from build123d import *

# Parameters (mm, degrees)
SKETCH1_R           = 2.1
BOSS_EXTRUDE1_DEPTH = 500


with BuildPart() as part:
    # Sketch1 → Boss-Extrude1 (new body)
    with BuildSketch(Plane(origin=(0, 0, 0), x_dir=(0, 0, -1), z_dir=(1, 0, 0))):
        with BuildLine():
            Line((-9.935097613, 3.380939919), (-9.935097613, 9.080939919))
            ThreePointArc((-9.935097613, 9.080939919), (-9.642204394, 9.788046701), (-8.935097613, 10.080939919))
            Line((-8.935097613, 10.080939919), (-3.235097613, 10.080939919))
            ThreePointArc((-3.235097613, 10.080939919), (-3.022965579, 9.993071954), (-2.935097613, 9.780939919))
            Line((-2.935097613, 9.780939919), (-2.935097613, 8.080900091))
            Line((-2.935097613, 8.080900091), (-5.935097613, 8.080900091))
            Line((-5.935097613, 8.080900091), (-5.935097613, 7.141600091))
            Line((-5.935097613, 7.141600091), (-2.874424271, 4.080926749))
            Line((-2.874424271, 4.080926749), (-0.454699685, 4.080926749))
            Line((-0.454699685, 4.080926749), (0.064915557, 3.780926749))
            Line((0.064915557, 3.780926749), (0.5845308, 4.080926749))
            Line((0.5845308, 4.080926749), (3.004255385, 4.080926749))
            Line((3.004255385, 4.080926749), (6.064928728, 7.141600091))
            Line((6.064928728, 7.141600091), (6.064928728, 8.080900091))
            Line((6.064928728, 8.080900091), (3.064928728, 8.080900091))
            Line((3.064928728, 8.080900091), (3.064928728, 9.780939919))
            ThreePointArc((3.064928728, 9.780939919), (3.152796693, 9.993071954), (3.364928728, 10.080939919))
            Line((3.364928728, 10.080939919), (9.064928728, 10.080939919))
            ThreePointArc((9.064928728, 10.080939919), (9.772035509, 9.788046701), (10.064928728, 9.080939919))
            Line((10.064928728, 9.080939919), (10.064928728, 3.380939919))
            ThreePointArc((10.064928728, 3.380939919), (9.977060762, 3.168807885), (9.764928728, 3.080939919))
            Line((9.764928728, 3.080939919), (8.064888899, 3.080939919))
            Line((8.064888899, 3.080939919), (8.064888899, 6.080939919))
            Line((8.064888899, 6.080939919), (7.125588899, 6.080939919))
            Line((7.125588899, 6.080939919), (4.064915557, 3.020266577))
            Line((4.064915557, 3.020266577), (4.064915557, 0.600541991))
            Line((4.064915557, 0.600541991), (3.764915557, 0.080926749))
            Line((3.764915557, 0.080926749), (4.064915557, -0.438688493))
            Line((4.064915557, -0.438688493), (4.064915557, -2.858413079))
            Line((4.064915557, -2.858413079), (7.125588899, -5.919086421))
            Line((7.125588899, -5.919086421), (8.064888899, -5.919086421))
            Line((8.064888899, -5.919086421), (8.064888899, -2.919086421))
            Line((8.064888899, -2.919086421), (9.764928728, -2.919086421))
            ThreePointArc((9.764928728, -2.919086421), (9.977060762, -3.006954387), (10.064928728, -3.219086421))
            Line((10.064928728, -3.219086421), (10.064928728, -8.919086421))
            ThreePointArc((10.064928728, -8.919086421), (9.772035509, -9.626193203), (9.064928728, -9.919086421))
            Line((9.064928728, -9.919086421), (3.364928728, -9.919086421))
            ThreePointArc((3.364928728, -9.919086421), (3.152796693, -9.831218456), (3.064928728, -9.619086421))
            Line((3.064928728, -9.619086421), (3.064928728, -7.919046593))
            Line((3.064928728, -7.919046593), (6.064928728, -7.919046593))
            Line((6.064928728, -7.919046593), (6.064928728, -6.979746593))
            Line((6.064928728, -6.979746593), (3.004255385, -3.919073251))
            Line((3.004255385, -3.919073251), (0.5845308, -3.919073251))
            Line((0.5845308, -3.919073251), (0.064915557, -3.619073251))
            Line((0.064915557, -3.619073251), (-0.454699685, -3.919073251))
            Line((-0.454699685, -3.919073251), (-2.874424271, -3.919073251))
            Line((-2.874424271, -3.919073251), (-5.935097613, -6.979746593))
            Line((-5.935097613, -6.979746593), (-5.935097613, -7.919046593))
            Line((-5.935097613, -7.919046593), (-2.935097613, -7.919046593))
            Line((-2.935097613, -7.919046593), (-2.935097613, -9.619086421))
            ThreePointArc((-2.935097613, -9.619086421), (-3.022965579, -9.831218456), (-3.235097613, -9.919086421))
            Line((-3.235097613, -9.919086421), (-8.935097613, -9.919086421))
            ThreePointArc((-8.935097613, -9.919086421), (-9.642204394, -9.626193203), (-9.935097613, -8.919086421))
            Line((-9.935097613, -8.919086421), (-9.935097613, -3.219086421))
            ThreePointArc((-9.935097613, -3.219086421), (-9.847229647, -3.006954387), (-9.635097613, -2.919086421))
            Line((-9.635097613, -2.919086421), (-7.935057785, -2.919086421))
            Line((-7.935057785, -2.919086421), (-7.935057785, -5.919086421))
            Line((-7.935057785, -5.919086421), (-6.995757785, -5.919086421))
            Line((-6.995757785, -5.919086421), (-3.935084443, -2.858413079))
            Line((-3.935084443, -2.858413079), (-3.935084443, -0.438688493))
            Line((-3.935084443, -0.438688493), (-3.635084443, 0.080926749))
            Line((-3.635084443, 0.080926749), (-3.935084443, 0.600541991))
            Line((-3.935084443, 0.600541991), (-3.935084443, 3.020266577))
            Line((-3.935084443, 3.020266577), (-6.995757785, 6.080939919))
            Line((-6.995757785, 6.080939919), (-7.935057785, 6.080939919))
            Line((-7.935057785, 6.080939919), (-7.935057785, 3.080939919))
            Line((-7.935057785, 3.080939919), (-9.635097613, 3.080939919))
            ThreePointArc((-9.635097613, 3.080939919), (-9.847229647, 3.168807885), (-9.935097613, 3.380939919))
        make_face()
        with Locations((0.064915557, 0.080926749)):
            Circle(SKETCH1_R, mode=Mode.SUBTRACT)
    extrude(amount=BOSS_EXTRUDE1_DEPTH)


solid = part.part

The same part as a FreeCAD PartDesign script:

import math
import FreeCAD as App
import Part
import Sketcher
from FreeCAD import Vector
Q = App.Units.Quantity

doc = App.newDocument("Part")
params = doc.addObject("Spreadsheet::Sheet", "Params")
for row, (alias, value) in enumerate([
    ("sketch1_radius", "1 mm"),
    ("sketch1_diameter", "4.2 mm"),
    ("sketch1_radius2", "0.3 mm"),
    ("sketch1_width", "3 mm"),
    ("sketch1_width2", "5.7 mm"),
    ("pad1_length", "500 mm"),
], start=1):
    params.set(f"A{row}", alias)
    params.set(f"B{row}", "=" + value)
    params.setAlias(f"B{row}", alias)

body = doc.addObject("PartDesign::Body", "Body")

# Sketch on YZ plane
sketch1 = doc.addObject("Sketcher::SketchObject", "Sketch")
body.addObject(sketch1)
sketch1.AttachmentSupport = (doc.YZ_Plane, [""])
sketch1.MapMode = "FlatFace"
sketch1.addGeometry([
    Part.LineSegment(Vector(9.08094, 9.935098, 0), Vector(3.38094, 9.935098, 0)),  # 0
    Part.ArcOfCircle(Part.Circle(Vector(3.38094, 9.635098, 0), Vector(0, 0, 1), 0.3), math.radians(90), math.radians(180)),  # 1
    Part.LineSegment(Vector(3.08094, 9.635098, 0), Vector(3.08094, 7.935058, 0)),  # 2
    Part.LineSegment(Vector(3.08094, 7.935058, 0), Vector(6.08094, 7.935058, 0)),  # 3
    Part.LineSegment(Vector(6.08094, 7.935058, 0), Vector(6.08094, 6.995758, 0)),  # 4
    Part.LineSegment(Vector(6.08094, 6.995758, 0), Vector(3.020267, 3.935084, 0)),  # 5
    Part.LineSegment(Vector(3.020267, 3.935084, 0), Vector(0.600542, 3.935084, 0)),  # 6
    Part.LineSegment(Vector(0.600542, 3.935084, 0), Vector(0.080927, 3.635084, 0)),  # 7
    Part.LineSegment(Vector(0.080927, 3.635084, 0), Vector(-0.438688, 3.935084, 0)),  # 8
    Part.LineSegment(Vector(-0.438688, 3.935084, 0), Vector(-2.858413, 3.935084, 0)),  # 9
    Part.LineSegment(Vector(-2.858413, 3.935084, 0), Vector(-5.919086, 6.995758, 0)),  # 10
    Part.LineSegment(Vector(-5.919086, 6.995758, 0), Vector(-5.919086, 7.935058, 0)),  # 11
    Part.LineSegment(Vector(-5.919086, 7.935058, 0), Vector(-2.919086, 7.935058, 0)),  # 12
    Part.LineSegment(Vector(-2.919086, 7.935058, 0), Vector(-2.919086, 9.635098, 0)),  # 13
    Part.ArcOfCircle(Part.Circle(Vector(-3.219086, 9.635098, 0), Vector(0, 0, 1), 0.3), math.radians(0), math.radians(90)),  # 14
    Part.LineSegment(Vector(-3.219086, 9.935098, 0), Vector(-8.919086, 9.935098, 0)),  # 15
    Part.ArcOfCircle(Part.Circle(Vector(-8.919086, 8.935098, 0), Vector(0, 0, 1), 1), math.radians(90), math.radians(180)),  # 16
    Part.LineSegment(Vector(-9.919086, 8.935098, 0), Vector(-9.919086, 3.235098, 0)),  # 17
    Part.ArcOfCircle(Part.Circle(Vector(-9.619086, 3.235098, 0), Vector(0, 0, 1), 0.3), math.radians(180), math.radians(270)),  # 18
    Part.LineSegment(Vector(-9.619086, 2.935098, 0), Vector(-7.919047, 2.935098, 0)),  # 19
    Part.LineSegment(Vector(-7.919047, 2.935098, 0), Vector(-7.919047, 5.935098, 0)),  # 20
    Part.LineSegment(Vector(-7.919047, 5.935098, 0), Vector(-6.979747, 5.935098, 0)),  # 21
    Part.LineSegment(Vector(-6.979747, 5.935098, 0), Vector(-3.919073, 2.874424, 0)),  # 22
    Part.LineSegment(Vector(-3.919073, 2.874424, 0), Vector(-3.919073, 0.4547, 0)),  # 23
    Part.LineSegment(Vector(-3.919073, 0.4547, 0), Vector(-3.619073, -0.064916, 0)),  # 24
    Part.LineSegment(Vector(-3.619073, -0.064916, 0), Vector(-3.919073, -0.584531, 0)),  # 25
    Part.LineSegment(Vector(-3.919073, -0.584531, 0), Vector(-3.919073, -3.004255, 0)),  # 26
    Part.LineSegment(Vector(-3.919073, -3.004255, 0), Vector(-6.979747, -6.064929, 0)),  # 27
    Part.LineSegment(Vector(-6.979747, -6.064929, 0), Vector(-7.919047, -6.064929, 0)),  # 28
    Part.LineSegment(Vector(-7.919047, -6.064929, 0), Vector(-7.919047, -3.064929, 0)),  # 29
    Part.LineSegment(Vector(-7.919047, -3.064929, 0), Vector(-9.619086, -3.064929, 0)),  # 30
    Part.ArcOfCircle(Part.Circle(Vector(-9.619086, -3.364929, 0), Vector(0, 0, 1), 0.3), math.radians(90), math.radians(180)),  # 31
    Part.LineSegment(Vector(-9.919086, -3.364929, 0), Vector(-9.919086, -9.064929, 0)),  # 32
    Part.ArcOfCircle(Part.Circle(Vector(-8.919086, -9.064929, 0), Vector(0, 0, 1), 1), math.radians(180), math.radians(270)),  # 33
    Part.LineSegment(Vector(-8.919086, -10.064929, 0), Vector(-3.219086, -10.064929, 0)),  # 34
    Part.ArcOfCircle(Part.Circle(Vector(-3.219086, -9.764929, 0), Vector(0, 0, 1), 0.3), math.radians(-90), math.radians(0)),  # 35
    Part.LineSegment(Vector(-2.919086, -9.764929, 0), Vector(-2.919086, -8.064889, 0)),  # 36
    Part.LineSegment(Vector(-2.919086, -8.064889, 0), Vector(-5.919086, -8.064889, 0)),  # 37
    Part.LineSegment(Vector(-5.919086, -8.064889, 0), Vector(-5.919086, -7.125589, 0)),  # 38
    Part.LineSegment(Vector(-5.919086, -7.125589, 0), Vector(-2.858413, -4.064916, 0)),  # 39
    Part.LineSegment(Vector(-2.858413, -4.064916, 0), Vector(-0.438688, -4.064916, 0)),  # 40
    Part.LineSegment(Vector(-0.438688, -4.064916, 0), Vector(0.080927, -3.764916, 0)),  # 41
    Part.LineSegment(Vector(0.080927, -3.764916, 0), Vector(0.600542, -4.064916, 0)),  # 42
    Part.LineSegment(Vector(0.600542, -4.064916, 0), Vector(3.020267, -4.064916, 0)),  # 43
    Part.LineSegment(Vector(3.020267, -4.064916, 0), Vector(6.08094, -7.125589, 0)),  # 44
    Part.LineSegment(Vector(6.08094, -7.125589, 0), Vector(6.08094, -8.064889, 0)),  # 45
    Part.LineSegment(Vector(6.08094, -8.064889, 0), Vector(3.08094, -8.064889, 0)),  # 46
    Part.LineSegment(Vector(3.08094, -8.064889, 0), Vector(3.08094, -9.764929, 0)),  # 47
    Part.ArcOfCircle(Part.Circle(Vector(3.38094, -9.764929, 0), Vector(0, 0, 1), 0.3), math.radians(-180), math.radians(-90)),  # 48
    Part.LineSegment(Vector(3.38094, -10.064929, 0), Vector(9.08094, -10.064929, 0)),  # 49
    Part.ArcOfCircle(Part.Circle(Vector(9.08094, -9.064929, 0), Vector(0, 0, 1), 1), math.radians(-90), math.radians(0)),  # 50
    Part.LineSegment(Vector(10.08094, -9.064929, 0), Vector(10.08094, -3.364929, 0)),  # 51
    Part.ArcOfCircle(Part.Circle(Vector(9.78094, -3.364929, 0), Vector(0, 0, 1), 0.3), math.radians(0), math.radians(90)),  # 52
    Part.LineSegment(Vector(9.78094, -3.064929, 0), Vector(8.0809, -3.064929, 0)),  # 53
    Part.LineSegment(Vector(8.0809, -3.064929, 0), Vector(8.0809, -6.064929, 0)),  # 54
    Part.LineSegment(Vector(8.0809, -6.064929, 0), Vector(7.1416, -6.064929, 0)),  # 55
    Part.LineSegment(Vector(7.1416, -6.064929, 0), Vector(4.080927, -3.004255, 0)),  # 56
    Part.LineSegment(Vector(4.080927, -3.004255, 0), Vector(4.080927, -0.584531, 0)),  # 57
    Part.LineSegment(Vector(4.080927, -0.584531, 0), Vector(3.780927, -0.064916, 0)),  # 58
    Part.LineSegment(Vector(3.780927, -0.064916, 0), Vector(4.080927, 0.4547, 0)),  # 59
    Part.LineSegment(Vector(4.080927, 0.4547, 0), Vector(4.080927, 2.874424, 0)),  # 60
    Part.LineSegment(Vector(4.080927, 2.874424, 0), Vector(7.1416, 5.935098, 0)),  # 61
    Part.LineSegment(Vector(7.1416, 5.935098, 0), Vector(8.0809, 5.935098, 0)),  # 62
    Part.LineSegment(Vector(8.0809, 5.935098, 0), Vector(8.0809, 2.935098, 0)),  # 63
    Part.LineSegment(Vector(8.0809, 2.935098, 0), Vector(9.78094, 2.935098, 0)),  # 64
    Part.ArcOfCircle(Part.Circle(Vector(9.78094, 3.235098, 0), Vector(0, 0, 1), 0.3), math.radians(-90), math.radians(0)),  # 65
    Part.LineSegment(Vector(10.08094, 3.235098, 0), Vector(10.08094, 8.935098, 0)),  # 66
    Part.ArcOfCircle(Part.Circle(Vector(9.08094, 8.935098, 0), Vector(0, 0, 1), 1), math.radians(0), math.radians(90)),  # 67
    Part.Circle(Vector(0.080927, -0.064916, 0), Vector(0, 0, 1), 2.1),  # 68
], False)
sketch1.addConstraint([
    Sketcher.Constraint("Tangent", 0, 2, 1, 1),
    Sketcher.Constraint("Tangent", 1, 2, 2, 1),
    Sketcher.Constraint("Coincident", 2, 2, 3, 1),
    Sketcher.Constraint("Coincident", 3, 2, 4, 1),
    Sketcher.Constraint("Coincident", 4, 2, 5, 1),
    Sketcher.Constraint("Coincident", 5, 2, 6, 1),
    Sketcher.Constraint("Coincident", 6, 2, 7, 1),
    Sketcher.Constraint("Coincident", 7, 2, 8, 1),
    Sketcher.Constraint("Coincident", 8, 2, 9, 1),
    Sketcher.Constraint("Coincident", 9, 2, 10, 1),
    Sketcher.Constraint("Coincident", 10, 2, 11, 1),
    Sketcher.Constraint("Coincident", 11, 2, 12, 1),
    Sketcher.Constraint("Coincident", 12, 2, 13, 1),
    Sketcher.Constraint("Tangent", 13, 2, 14, 1),
    Sketcher.Constraint("Tangent", 14, 2, 15, 1),
    Sketcher.Constraint("Tangent", 15, 2, 16, 1),
    Sketcher.Constraint("Tangent", 16, 2, 17, 1),
    Sketcher.Constraint("Tangent", 17, 2, 18, 1),
    Sketcher.Constraint("Tangent", 18, 2, 19, 1),
    Sketcher.Constraint("Coincident", 19, 2, 20, 1),
    Sketcher.Constraint("Coincident", 20, 2, 21, 1),
    Sketcher.Constraint("Coincident", 21, 2, 22, 1),
    Sketcher.Constraint("Coincident", 22, 2, 23, 1),
    Sketcher.Constraint("Coincident", 23, 2, 24, 1),
    Sketcher.Constraint("Coincident", 24, 2, 25, 1),
    Sketcher.Constraint("Coincident", 25, 2, 26, 1),
    Sketcher.Constraint("Coincident", 26, 2, 27, 1),
    Sketcher.Constraint("Coincident", 27, 2, 28, 1),
    Sketcher.Constraint("Coincident", 28, 2, 29, 1),
    Sketcher.Constraint("Coincident", 29, 2, 30, 1),
    Sketcher.Constraint("Tangent", 30, 2, 31, 1),
    Sketcher.Constraint("Tangent", 31, 2, 32, 1),
    Sketcher.Constraint("Tangent", 32, 2, 33, 1),
    Sketcher.Constraint("Tangent", 33, 2, 34, 1),
    Sketcher.Constraint("Tangent", 34, 2, 35, 1),
    Sketcher.Constraint("Tangent", 35, 2, 36, 1),
    Sketcher.Constraint("Coincident", 36, 2, 37, 1),
    Sketcher.Constraint("Coincident", 37, 2, 38, 1),
    Sketcher.Constraint("Coincident", 38, 2, 39, 1),
    Sketcher.Constraint("Coincident", 39, 2, 40, 1),
    Sketcher.Constraint("Coincident", 40, 2, 41, 1),
    Sketcher.Constraint("Coincident", 41, 2, 42, 1),
    Sketcher.Constraint("Coincident", 42, 2, 43, 1),
    Sketcher.Constraint("Coincident", 43, 2, 44, 1),
    Sketcher.Constraint("Coincident", 44, 2, 45, 1),
    Sketcher.Constraint("Coincident", 45, 2, 46, 1),
    Sketcher.Constraint("Coincident", 46, 2, 47, 1),
    Sketcher.Constraint("Tangent", 47, 2, 48, 1),
    Sketcher.Constraint("Tangent", 48, 2, 49, 1),
    Sketcher.Constraint("Tangent", 49, 2, 50, 1),
    Sketcher.Constraint("Tangent", 50, 2, 51, 1),
    Sketcher.Constraint("Tangent", 51, 2, 52, 1),
    Sketcher.Constraint("Tangent", 52, 2, 53, 1),
    Sketcher.Constraint("Coincident", 53, 2, 54, 1),
    Sketcher.Constraint("Coincident", 54, 2, 55, 1),
    Sketcher.Constraint("Coincident", 55, 2, 56, 1),
    Sketcher.Constraint("Coincident", 56, 2, 57, 1),
    Sketcher.Constraint("Coincident", 57, 2, 58, 1),
    Sketcher.Constraint("Coincident", 58, 2, 59, 1),
    Sketcher.Constraint("Coincident", 59, 2, 60, 1),
    Sketcher.Constraint("Coincident", 60, 2, 61, 1),
    Sketcher.Constraint("Coincident", 61, 2, 62, 1),
    Sketcher.Constraint("Coincident", 62, 2, 63, 1),
    Sketcher.Constraint("Coincident", 63, 2, 64, 1),
    Sketcher.Constraint("Tangent", 64, 2, 65, 1),
    Sketcher.Constraint("Tangent", 65, 2, 66, 1),
    Sketcher.Constraint("Tangent", 66, 2, 67, 1),
    Sketcher.Constraint("Tangent", 67, 2, 0, 1),
    Sketcher.Constraint("Horizontal", 0),
    Sketcher.Constraint("Vertical", 2),
    Sketcher.Constraint("Horizontal", 3),
    Sketcher.Constraint("Vertical", 4),
    Sketcher.Constraint("Horizontal", 6),
    Sketcher.Constraint("Horizontal", 9),
    Sketcher.Constraint("Vertical", 11),
    Sketcher.Constraint("Horizontal", 12),
    Sketcher.Constraint("Vertical", 13),
    Sketcher.Constraint("Horizontal", 15),
    Sketcher.Constraint("Vertical", 17),
    Sketcher.Constraint("Horizontal", 19),
    Sketcher.Constraint("Vertical", 20),
    Sketcher.Constraint("Horizontal", 21),
    Sketcher.Constraint("Vertical", 23),
    Sketcher.Constraint("Vertical", 26),
    Sketcher.Constraint("Horizontal", 28),
    Sketcher.Constraint("Vertical", 29),
    Sketcher.Constraint("Horizontal", 30),
    Sketcher.Constraint("Vertical", 32),
    Sketcher.Constraint("Horizontal", 34),
    Sketcher.Constraint("Vertical", 36),
    Sketcher.Constraint("Horizontal", 37),
    Sketcher.Constraint("Vertical", 38),
    Sketcher.Constraint("Horizontal", 40),
    Sketcher.Constraint("Horizontal", 43),
    Sketcher.Constraint("Vertical", 45),
    Sketcher.Constraint("Horizontal", 46),
    Sketcher.Constraint("Vertical", 47),
    Sketcher.Constraint("Horizontal", 49),
    Sketcher.Constraint("Vertical", 51),
    Sketcher.Constraint("Horizontal", 53),
    Sketcher.Constraint("Vertical", 54),
    Sketcher.Constraint("Horizontal", 55),
    Sketcher.Constraint("Vertical", 57),
    Sketcher.Constraint("Vertical", 60),
    Sketcher.Constraint("Horizontal", 62),
    Sketcher.Constraint("Vertical", 63),
    Sketcher.Constraint("Horizontal", 64),
    Sketcher.Constraint("Vertical", 66),
    Sketcher.Constraint("Equal", 1, 14),
    Sketcher.Constraint("Equal", 14, 18),
    Sketcher.Constraint("Equal", 18, 31),
    Sketcher.Constraint("Equal", 16, 33),
    Sketcher.Constraint("Equal", 31, 35),
    Sketcher.Constraint("Equal", 35, 48),
    Sketcher.Constraint("Equal", 33, 50),
    Sketcher.Constraint("Equal", 48, 52),
    Sketcher.Constraint("Equal", 52, 65),
    Sketcher.Constraint("Equal", 50, 67),
    Sketcher.Constraint("Perpendicular", 5, 10),
    Sketcher.Constraint("Parallel", 10, 22),
    Sketcher.Constraint("Perpendicular", 7, 24),
    Sketcher.Constraint("Perpendicular", 8, 25),
    Sketcher.Constraint("Perpendicular", 22, 27),
    Sketcher.Constraint("Parallel", 27, 39),
    Sketcher.Constraint("Perpendicular", 24, 41),
    Sketcher.Constraint("Perpendicular", 25, 42),
    Sketcher.Constraint("Perpendicular", 39, 44),
    Sketcher.Constraint("Parallel", 44, 56),
    Sketcher.Constraint("Perpendicular", 41, 58),
    Sketcher.Constraint("Perpendicular", 42, 59),
    Sketcher.Constraint("Perpendicular", 56, 61),
    Sketcher.Constraint("Horizontal", 1, 3, 14, 3),
    Sketcher.Constraint("Horizontal", 35, 3, 48, 3),
    Sketcher.Constraint("Horizontal", 31, 3, 52, 3),
    Sketcher.Constraint("Horizontal", 18, 3, 65, 3),
    Sketcher.Constraint("Horizontal", 6, 2, 8, 2),
    Sketcher.Constraint("Horizontal", 4, 2, 10, 2),
    Sketcher.Constraint("Horizontal", 3, 2, 11, 2),
    Sketcher.Constraint("Horizontal", 68, 3, 24, 2),
    Sketcher.Constraint("Horizontal", 40, 2, 42, 2),
    Sketcher.Constraint("Horizontal", 38, 2, 44, 2),
    Sketcher.Constraint("Horizontal", 37, 2, 45, 2),
    Sketcher.Constraint("Horizontal", 28, 2, 54, 2),
    Sketcher.Constraint("Horizontal", 26, 2, 56, 2),
    Sketcher.Constraint("Horizontal", 25, 2, 57, 2),
    Sketcher.Constraint("Horizontal", 24, 2, 58, 2),
    Sketcher.Constraint("Horizontal", 23, 2, 59, 2),
    Sketcher.Constraint("Horizontal", 22, 2, 60, 2),
    Sketcher.Constraint("Horizontal", 21, 2, 61, 2),
    Sketcher.Constraint("Vertical", 18, 3, 31, 3),
    Sketcher.Constraint("Vertical", 14, 3, 35, 3),
    Sketcher.Constraint("Vertical", 1, 3, 48, 3),
    Sketcher.Constraint("Vertical", 52, 3, 65, 3),
    Sketcher.Constraint("Vertical", 68, 3, 7, 2),
    Sketcher.Constraint("Vertical", 23, 2, 25, 2),
    Sketcher.Constraint("Vertical", 21, 2, 27, 2),
    Sketcher.Constraint("Vertical", 20, 2, 28, 2),
    Sketcher.Constraint("Vertical", 11, 2, 37, 2),
    Sketcher.Constraint("Vertical", 9, 2, 39, 2),
    Sketcher.Constraint("Vertical", 8, 2, 40, 2),
    Sketcher.Constraint("Vertical", 7, 2, 41, 2),
    Sketcher.Constraint("Vertical", 6, 2, 42, 2),
    Sketcher.Constraint("Vertical", 5, 2, 43, 2),
    Sketcher.Constraint("Vertical", 4, 2, 44, 2),
    Sketcher.Constraint("Vertical", 54, 2, 62, 2),
    Sketcher.Constraint("Equal", 6, 9),
    Sketcher.Constraint("Equal", 3, 12),
    Sketcher.Constraint("Equal", 0, 15),
    Sketcher.Constraint("Equal", 30, 53),
    Sketcher.Constraint("Equal", 28, 55),
    Sketcher.Constraint("Equal", 64, 2),
    Sketcher.Constraint("Equal", 62, 4),
    Sketcher.Constraint("Equal", 49, 17),
    Sketcher.Constraint("Equal", 46, 20),
    Sketcher.Constraint("Equal", 43, 23),
    Sketcher.Constraint("Equal", 23, 26),
    Sketcher.Constraint("Equal", 20, 29),
    Sketcher.Constraint("Equal", 17, 32),
    Sketcher.Constraint("Equal", 13, 36),
    Sketcher.Constraint("Equal", 11, 38),
    Sketcher.Constraint("Equal", 10, 22),
    Sketcher.Constraint("Equal", 8, 24),
    Sketcher.Constraint("Radius", 16, Q("1 mm")),
    Sketcher.Constraint("Diameter", 68, Q("4.2 mm")),
    Sketcher.Constraint("Radius", 1, Q("0.3 mm")),
    Sketcher.Constraint("DistanceX", 3, 1, 3, 2, Q("3 mm")),
    Sketcher.Constraint("Angle", 7, Q("-150 deg")),
    Sketcher.Constraint("DistanceX", 0, 2, 0, 1, Q("5.7 mm")),
    Sketcher.Constraint("Distance", 7, Q("0.6 mm")),
    Sketcher.Constraint("DistanceX", 21, 1, 21, 2, Q("0.9393 mm")),
    Sketcher.Constraint("DistanceX", 19, 1, 19, 2, Q("1.70004 mm")),
    Sketcher.Constraint("DistanceY", -1, 1, 23, 2, Q("0.4547 mm")),
    Sketcher.Constraint("DistanceX", -1, 1, 53, 2, Q("8.0809 mm")),
    Sketcher.Constraint("DistanceX", 6, 2, 6, 1, Q("2.419725 mm")),
    Sketcher.Constraint("DistanceY", 31, 3, -1, 1, Q("3.364929 mm")),
])
sketch1.setExpression("Constraints[182]", "Params.sketch1_radius")
sketch1.setExpression("Constraints[183]", "Params.sketch1_diameter")
sketch1.setExpression("Constraints[184]", "Params.sketch1_radius2")
sketch1.setExpression("Constraints[185]", "Params.sketch1_width")
sketch1.setExpression("Constraints[187]", "Params.sketch1_width2")
pad1 = doc.addObject("PartDesign::Pad", "Pad")
body.addObject(pad1)
pad1.Profile = sketch1
pad1.setExpression("Length", "Params.pad1_length")

doc.recompute()
